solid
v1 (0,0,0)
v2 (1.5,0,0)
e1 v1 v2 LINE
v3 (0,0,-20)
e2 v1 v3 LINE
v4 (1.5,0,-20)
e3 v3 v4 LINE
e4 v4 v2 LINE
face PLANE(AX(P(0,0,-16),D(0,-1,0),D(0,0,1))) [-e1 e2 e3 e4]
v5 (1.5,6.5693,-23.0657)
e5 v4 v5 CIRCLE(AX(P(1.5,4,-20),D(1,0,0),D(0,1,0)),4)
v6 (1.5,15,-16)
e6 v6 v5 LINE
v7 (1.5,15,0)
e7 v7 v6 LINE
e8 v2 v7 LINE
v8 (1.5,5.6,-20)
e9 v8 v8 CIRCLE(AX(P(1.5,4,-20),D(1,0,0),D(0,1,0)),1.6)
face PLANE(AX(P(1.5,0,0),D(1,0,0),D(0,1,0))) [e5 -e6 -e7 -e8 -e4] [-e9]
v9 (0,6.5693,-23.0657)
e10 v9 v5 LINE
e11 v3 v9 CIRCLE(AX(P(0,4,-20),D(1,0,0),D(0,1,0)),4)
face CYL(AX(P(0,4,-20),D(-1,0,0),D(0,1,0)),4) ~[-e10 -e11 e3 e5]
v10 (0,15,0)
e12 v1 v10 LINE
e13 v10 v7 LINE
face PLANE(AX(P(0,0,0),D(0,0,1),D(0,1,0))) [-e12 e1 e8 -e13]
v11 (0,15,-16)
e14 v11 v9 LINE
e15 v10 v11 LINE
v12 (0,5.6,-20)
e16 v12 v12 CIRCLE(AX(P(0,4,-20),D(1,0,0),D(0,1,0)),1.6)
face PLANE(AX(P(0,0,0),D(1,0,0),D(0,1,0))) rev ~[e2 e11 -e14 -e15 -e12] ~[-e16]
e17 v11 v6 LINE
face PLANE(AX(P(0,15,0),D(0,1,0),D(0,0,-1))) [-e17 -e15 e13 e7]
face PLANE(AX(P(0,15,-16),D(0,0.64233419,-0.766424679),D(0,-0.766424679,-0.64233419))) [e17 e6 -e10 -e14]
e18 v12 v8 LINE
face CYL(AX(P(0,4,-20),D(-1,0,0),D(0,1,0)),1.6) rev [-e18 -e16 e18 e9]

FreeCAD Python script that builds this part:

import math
import FreeCAD as App
import Part
import Sketcher
from FreeCAD import Vector
Q = App.Units.Quantity

doc = App.newDocument("Part")
body = doc.addObject("PartDesign::Body", "Body")

sketch1 = body.newObject("Sketcher::SketchObject", "Sketch")
sketch1.AttachmentSupport = (doc.getObject("YZ_Plane"), [""])
sketch1.MapMode = "FlatFace"
sketch1.addGeometry(Part.LineSegment(Vector(15, 0, 0), Vector(0, 0, 0)), False)
sketch1.addGeometry(Part.LineSegment(Vector(0, 0, 0), Vector(0, -20, 0)), False)
sketch1.addGeometry(Part.ArcOfCircle(Part.Circle(Vector(4, -20, 0), Vector(0, 0, 1), 4), math.radians(180), math.radians(310)), False)
sketch1.addGeometry(Part.LineSegment(Vector(6.6, -23.1, 0), Vector(15, -16, 0)), False)
sketch1.addGeometry(Part.LineSegment(Vector(15, -16, 0), Vector(15, 0, 0)), False)
sketch1.addGeometry(Part.Circle(Vector(4, -20, 0), Vector(0, 0, 1), 1.6), False)
sketch1.addConstraint(Sketcher.Constraint("Coincident", 0, 2, 1, 1))
sketch1.addConstraint(Sketcher.Constraint("Tangent", 1, 2, 2, 1))
sketch1.addConstraint(Sketcher.Constraint("Tangent", 2, 2, 3, 1))
sketch1.addConstraint(Sketcher.Constraint("Coincident", 3, 2, 4, 1))
sketch1.addConstraint(Sketcher.Constraint("Coincident", 4, 2, 0, 1))
sketch1.addConstraint(Sketcher.Constraint("Horizontal", 0))
sketch1.addConstraint(Sketcher.Constraint("Vertical", 1))
sketch1.addConstraint(Sketcher.Constraint("Vertical", 4))
sketch1.addConstraint(Sketcher.Constraint("Coincident", 0, 2, -1, 1))
sketch1.addConstraint(Sketcher.Constraint("Coincident", 5, 3, 2, 3))
sketch1.addConstraint(Sketcher.Constraint("Radius", 2, Q("4 mm")))
sketch1.addConstraint(Sketcher.Constraint("Diameter", 5, Q("3.2 mm")))
sketch1.addConstraint(Sketcher.Constraint("DistanceX", 0, 2, 0, 1, Q("15 mm")))
sketch1.addConstraint(Sketcher.Constraint("DistanceY", 1, 2, 1, 1, Q("20 mm")))
sketch1.addConstraint(Sketcher.Constraint("DistanceY", 4, 1, 4, 2, Q("16 mm")))
pad1 = body.newObject("PartDesign::Pad", "Pad")
pad1.Profile = sketch1
pad1.Length = 1.5

doc.recompute()
